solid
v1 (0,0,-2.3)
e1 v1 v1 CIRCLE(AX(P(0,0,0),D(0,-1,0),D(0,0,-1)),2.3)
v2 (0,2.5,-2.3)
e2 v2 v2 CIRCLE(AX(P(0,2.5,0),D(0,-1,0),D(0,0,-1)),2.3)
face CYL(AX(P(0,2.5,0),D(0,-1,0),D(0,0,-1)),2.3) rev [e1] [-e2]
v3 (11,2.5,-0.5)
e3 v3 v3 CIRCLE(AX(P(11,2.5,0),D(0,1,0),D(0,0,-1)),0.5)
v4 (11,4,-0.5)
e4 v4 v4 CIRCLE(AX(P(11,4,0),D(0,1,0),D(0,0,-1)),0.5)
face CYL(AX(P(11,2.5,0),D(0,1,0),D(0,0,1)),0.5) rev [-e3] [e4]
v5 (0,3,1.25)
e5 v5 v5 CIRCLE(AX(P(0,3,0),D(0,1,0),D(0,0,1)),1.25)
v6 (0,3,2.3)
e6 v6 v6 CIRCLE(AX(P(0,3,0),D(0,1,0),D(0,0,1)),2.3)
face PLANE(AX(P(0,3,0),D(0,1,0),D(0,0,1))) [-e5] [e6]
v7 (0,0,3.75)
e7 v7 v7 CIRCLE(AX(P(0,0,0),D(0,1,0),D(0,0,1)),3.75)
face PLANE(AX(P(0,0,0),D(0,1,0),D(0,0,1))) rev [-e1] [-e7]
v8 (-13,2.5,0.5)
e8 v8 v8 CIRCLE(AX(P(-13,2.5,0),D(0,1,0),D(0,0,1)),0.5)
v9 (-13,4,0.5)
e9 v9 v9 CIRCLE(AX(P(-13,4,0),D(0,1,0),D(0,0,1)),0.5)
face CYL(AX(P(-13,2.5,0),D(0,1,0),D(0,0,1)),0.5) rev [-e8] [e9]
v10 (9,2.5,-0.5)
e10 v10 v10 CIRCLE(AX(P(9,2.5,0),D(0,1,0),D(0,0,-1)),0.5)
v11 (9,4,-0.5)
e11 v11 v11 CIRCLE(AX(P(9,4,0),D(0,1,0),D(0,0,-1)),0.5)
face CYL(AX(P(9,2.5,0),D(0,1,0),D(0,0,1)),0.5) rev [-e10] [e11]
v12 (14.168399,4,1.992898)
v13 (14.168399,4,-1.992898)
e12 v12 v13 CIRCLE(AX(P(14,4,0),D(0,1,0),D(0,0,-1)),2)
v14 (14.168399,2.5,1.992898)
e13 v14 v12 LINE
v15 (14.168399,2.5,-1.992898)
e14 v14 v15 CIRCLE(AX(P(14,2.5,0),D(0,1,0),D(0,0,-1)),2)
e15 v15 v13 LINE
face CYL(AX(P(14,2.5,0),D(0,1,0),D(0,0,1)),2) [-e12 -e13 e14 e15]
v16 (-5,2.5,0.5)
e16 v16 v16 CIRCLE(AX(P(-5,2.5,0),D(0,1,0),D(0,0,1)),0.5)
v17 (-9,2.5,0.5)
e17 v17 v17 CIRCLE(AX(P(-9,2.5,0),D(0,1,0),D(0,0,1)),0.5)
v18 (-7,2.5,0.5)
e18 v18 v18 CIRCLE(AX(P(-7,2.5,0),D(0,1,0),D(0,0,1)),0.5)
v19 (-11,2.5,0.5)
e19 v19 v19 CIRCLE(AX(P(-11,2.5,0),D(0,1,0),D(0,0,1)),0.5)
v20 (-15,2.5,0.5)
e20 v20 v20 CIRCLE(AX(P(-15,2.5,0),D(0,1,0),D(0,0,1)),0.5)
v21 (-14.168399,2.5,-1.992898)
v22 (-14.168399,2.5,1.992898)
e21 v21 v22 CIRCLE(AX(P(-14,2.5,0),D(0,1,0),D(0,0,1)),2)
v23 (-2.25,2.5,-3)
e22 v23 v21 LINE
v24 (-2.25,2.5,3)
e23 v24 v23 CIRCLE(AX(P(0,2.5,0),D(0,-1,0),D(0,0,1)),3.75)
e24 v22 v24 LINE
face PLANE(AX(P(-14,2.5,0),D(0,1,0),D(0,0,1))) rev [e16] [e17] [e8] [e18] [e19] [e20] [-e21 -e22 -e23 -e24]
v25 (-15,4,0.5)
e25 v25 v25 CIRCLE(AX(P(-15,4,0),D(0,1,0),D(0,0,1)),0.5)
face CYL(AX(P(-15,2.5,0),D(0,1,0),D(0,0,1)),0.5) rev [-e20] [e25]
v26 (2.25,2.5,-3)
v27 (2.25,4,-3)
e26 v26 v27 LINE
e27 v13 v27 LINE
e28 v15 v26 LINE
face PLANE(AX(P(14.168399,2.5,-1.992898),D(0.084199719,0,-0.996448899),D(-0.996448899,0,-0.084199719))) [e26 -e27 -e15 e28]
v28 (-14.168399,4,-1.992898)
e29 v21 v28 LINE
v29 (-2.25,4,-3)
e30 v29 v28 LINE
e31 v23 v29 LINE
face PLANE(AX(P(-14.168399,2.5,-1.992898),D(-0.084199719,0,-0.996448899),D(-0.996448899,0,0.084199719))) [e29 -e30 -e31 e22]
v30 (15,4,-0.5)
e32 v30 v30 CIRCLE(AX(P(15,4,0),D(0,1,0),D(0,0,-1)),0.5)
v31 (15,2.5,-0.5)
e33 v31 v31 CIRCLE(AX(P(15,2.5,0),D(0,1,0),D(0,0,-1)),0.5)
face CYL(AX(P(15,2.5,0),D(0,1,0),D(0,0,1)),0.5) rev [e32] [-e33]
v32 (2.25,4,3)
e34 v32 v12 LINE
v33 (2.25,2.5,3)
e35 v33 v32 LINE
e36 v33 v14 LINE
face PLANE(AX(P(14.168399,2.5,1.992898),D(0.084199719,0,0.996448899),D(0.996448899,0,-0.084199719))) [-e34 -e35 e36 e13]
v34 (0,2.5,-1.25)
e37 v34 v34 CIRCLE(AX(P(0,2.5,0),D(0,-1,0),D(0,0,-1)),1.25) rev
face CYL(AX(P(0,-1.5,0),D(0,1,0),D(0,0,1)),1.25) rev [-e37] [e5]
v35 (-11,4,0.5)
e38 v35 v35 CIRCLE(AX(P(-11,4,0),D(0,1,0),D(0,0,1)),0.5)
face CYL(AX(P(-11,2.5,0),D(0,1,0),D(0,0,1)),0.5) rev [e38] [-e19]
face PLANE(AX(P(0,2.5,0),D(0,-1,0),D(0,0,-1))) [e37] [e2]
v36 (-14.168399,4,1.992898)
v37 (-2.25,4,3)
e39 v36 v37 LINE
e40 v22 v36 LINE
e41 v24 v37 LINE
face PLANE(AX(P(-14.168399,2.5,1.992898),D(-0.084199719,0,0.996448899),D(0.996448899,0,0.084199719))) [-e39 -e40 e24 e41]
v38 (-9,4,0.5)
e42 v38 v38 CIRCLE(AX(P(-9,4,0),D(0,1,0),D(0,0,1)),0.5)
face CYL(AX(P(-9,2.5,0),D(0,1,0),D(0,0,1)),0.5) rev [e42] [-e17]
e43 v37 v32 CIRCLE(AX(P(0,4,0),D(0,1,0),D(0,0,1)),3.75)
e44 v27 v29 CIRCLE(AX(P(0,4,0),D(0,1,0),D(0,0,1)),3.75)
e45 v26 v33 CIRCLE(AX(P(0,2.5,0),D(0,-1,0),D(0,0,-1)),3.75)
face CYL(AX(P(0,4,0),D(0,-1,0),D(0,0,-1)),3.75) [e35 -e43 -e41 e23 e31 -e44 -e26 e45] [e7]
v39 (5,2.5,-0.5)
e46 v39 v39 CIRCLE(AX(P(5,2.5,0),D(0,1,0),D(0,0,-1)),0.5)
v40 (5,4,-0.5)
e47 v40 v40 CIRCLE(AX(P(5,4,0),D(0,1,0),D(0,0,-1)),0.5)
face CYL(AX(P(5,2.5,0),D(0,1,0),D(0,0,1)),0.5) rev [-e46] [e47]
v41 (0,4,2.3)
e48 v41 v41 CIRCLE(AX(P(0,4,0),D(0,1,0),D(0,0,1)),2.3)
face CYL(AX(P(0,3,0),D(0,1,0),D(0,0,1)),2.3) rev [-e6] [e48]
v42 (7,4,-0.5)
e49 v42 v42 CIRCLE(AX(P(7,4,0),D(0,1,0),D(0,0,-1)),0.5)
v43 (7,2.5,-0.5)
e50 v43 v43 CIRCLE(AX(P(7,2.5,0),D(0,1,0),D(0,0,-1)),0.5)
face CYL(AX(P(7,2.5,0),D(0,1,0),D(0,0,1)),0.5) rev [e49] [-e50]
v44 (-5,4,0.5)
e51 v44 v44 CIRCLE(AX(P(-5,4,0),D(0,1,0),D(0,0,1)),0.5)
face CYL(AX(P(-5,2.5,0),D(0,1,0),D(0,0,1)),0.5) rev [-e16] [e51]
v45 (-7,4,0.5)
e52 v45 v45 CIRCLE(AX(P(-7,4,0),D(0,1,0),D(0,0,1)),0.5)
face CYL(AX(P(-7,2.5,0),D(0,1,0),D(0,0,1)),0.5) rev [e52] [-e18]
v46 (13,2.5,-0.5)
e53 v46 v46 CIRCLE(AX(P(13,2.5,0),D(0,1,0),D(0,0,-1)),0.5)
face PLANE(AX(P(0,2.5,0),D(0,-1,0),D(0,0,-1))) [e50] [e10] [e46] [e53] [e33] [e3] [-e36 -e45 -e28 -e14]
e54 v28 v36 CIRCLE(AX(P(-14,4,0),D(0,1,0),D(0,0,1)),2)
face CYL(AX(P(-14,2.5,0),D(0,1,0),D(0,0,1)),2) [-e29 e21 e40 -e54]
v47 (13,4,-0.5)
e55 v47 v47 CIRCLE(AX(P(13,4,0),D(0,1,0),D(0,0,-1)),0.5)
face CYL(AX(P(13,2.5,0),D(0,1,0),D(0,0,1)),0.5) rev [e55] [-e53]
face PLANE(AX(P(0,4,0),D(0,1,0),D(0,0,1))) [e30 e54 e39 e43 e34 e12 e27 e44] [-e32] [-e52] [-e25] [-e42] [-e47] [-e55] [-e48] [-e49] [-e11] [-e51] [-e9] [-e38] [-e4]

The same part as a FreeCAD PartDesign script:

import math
import FreeCAD as App
import Part
import Sketcher
Q = App.Units.Quantity

doc = App.newDocument("Part")
body = doc.addObject("PartDesign::Body", "Body")

# Sketch on XZ plane
sketch1 = body.newObject("Sketcher::SketchObject", "Sketch")
sketch1.AttachmentSupport = (doc.getObject("XZ_Plane"), [""])
sketch1.MapMode = "FlatFace"
sketch1.addGeometry(Part.Circle(App.Vector(0, 0, 0), App.Vector(0, 0, 1), 3.8), False)
sketch1.addConstraint(Sketcher.Constraint("Coincident", 0, 3, -1, 1))
sketch1.addConstraint(Sketcher.Constraint("Diameter", 0, Q("7.5 mm")))
pad1 = body.newObject("PartDesign::Pad", "Pad")
pad1.Profile = sketch1
pad1.Length = 4
pad1.Reversed = True

# Sketch on XZ plane
sketch2 = body.newObject("Sketcher::SketchObject", "Sketch001")
sketch2.AttachmentSupport = (doc.getObject("XZ_Plane"), [""])
sketch2.MapMode = "FlatFace"
sketch2.AttachmentOffset = App.Placement(App.Vector(0, 0, -4), App.Rotation())
sketch2.addGeometry(Part.Circle(App.Vector(0, 0, 0), App.Vector(0, 0, 1), 2.3), False)
sketch2.addConstraint(Sketcher.Constraint("Coincident", 0, 3, -1, 1))
sketch2.addConstraint(Sketcher.Constraint("Diameter", 0, Q("4.6 mm")))
pocket1 = body.newObject("PartDesign::Pocket", "Pocket")
pocket1.Profile = sketch2
pocket1.Length = 1
pocket1.Reversed = True

# Sketch on XZ plane
sketch3 = body.newObject("Sketcher::SketchObject", "Sketch002")
sketch3.AttachmentSupport = (doc.getObject("XZ_Plane"), [""])
sketch3.MapMode = "FlatFace"
sketch3.AttachmentOffset = App.Placement(App.Vector(0, 0, -2.5), App.Rotation())
sketch3.addGeometry(Part.LineSegment(App.Vector(-2.2, -3, 0), App.Vector(-14.2, -2, 0)), False)
sketch3.addGeometry(Part.ArcOfCircle(Part.Circle(App.Vector(-14, 0, 0), App.Vector(0, 0, 1), 2), math.radians(95), math.radians(265)), False)
sketch3.addGeometry(Part.LineSegment(App.Vector(-14.2, 2, 0), App.Vector(-2.2, 3, 0)), False)
sketch3.addGeometry(Part.ArcOfCircle(Part.Circle(App.Vector(0, 0, 0), App.Vector(0, 0, 1), 3.8), math.radians(127), math.radians(233)), False)
sketch3.addGeometry(Part.Circle(App.Vector(-5, 0, 0), App.Vector(0, 0, 1), 0.5), False)
sketch3.addGeometry(Part.Circle(App.Vector(-7, 0, 0), App.Vector(0, 0, 1), 0.5), False)
sketch3.addGeometry(Part.Circle(App.Vector(-9, 0, 0), App.Vector(0, 0, 1), 0.5), False)
sketch3.addGeometry(Part.Circle(App.Vector(-11, 0, 0), App.Vector(0, 0, 1), 0.5), False)
sketch3.addGeometry(Part.Circle(App.Vector(-13, 0, 0), App.Vector(0, 0, 1), 0.5), False)
sketch3.addGeometry(Part.Circle(App.Vector(-15, 0, 0), App.Vector(0, 0, 1), 0.5), False)
sketch3.addGeometry(Part.LineSegment(App.Vector(2.2, 3, 0), App.Vector(14.2, 2, 0)), False)
sketch3.addGeometry(Part.ArcOfCircle(Part.Circle(App.Vector(14, 0, 0), App.Vector(0, 0, 1), 2), math.radians(-85), math.radians(85)), False)
sketch3.addGeometry(Part.LineSegment(App.Vector(14.2, -2, 0), App.Vector(2.2, -3, 0)), False)
sketch3.addGeometry(Part.ArcOfCircle(Part.Circle(App.Vector(0, 0, 0), App.Vector(0, 0, 1), 3.8), math.radians(-53), math.radians(53)), False)
sketch3.addGeometry(Part.Circle(App.Vector(15, 0, 0), App.Vector(0, 0, 1), 0.5), False)
sketch3.addGeometry(Part.Circle(App.Vector(13, 0, 0), App.Vector(0, 0, 1), 0.5), False)
sketch3.addGeometry(Part.Circle(App.Vector(11, 0, 0), App.Vector(0, 0, 1), 0.5), False)
sketch3.addGeometry(Part.Circle(App.Vector(9, 0, 0), App.Vector(0, 0, 1), 0.5), False)
sketch3.addGeometry(Part.Circle(App.Vector(7, 0, 0), App.Vector(0, 0, 1), 0.5), False)
sketch3.addGeometry(Part.Circle(App.Vector(5, 0, 0), App.Vector(0, 0, 1), 0.5), False)
sketch3.addConstraint(Sketcher.Constraint("Tangent", 0, 2, 1, 2))
sketch3.addConstraint(Sketcher.Constraint("Tangent", 1, 1, 2, 1))
sketch3.addConstraint(Sketcher.Constraint("Coincident", 2, 2, 3, 1))
sketch3.addConstraint(Sketcher.Constraint("Coincident", 3, 2, 0, 1))
sketch3.addConstraint(Sketcher.Constraint("Tangent", 10, 2, 11, 2))
sketch3.addConstraint(Sketcher.Constraint("Tangent", 11, 1, 12, 1))
sketch3.addConstraint(Sketcher.Constraint("Coincident", 12, 2, 13, 1))
sketch3.addConstraint(Sketcher.Constraint("Coincident", 13, 2, 10, 1))
sketch3.addConstraint(Sketcher.Constraint("Coincident", 3, 3, -1, 1))
sketch3.addConstraint(Sketcher.Constraint("Coincident", 13, 3, -1, 1))
sketch3.addConstraint(Sketcher.Constraint("Equal", 4, 5))
sketch3.addConstraint(Sketcher.Constraint("Equal", 5, 6))
sketch3.addConstraint(Sketcher.Constraint("Equal", 6, 7))
sketch3.addConstraint(Sketcher.Constraint("Equal", 7, 8))
sketch3.addConstraint(Sketcher.Constraint("Equal", 8, 9))
sketch3.addConstraint(Sketcher.Constraint("Equal", 1, 11))
sketch3.addConstraint(Sketcher.Constraint("Equal", 3, 13))
sketch3.addConstraint(Sketcher.Constraint("Equal", 9, 14))
sketch3.addConstraint(Sketcher.Constraint("Equal", 14, 15))
sketch3.addConstraint(Sketcher.Constraint("Equal", 15, 16))
sketch3.addConstraint(Sketcher.Constraint("Equal", 16, 17))
sketch3.addConstraint(Sketcher.Constraint("Equal", 17, 18))
sketch3.addConstraint(Sketcher.Constraint("Equal", 18, 19))
sketch3.addConstraint(Sketcher.Constraint("Symmetric", 1, 3, 11, 3, -1, 1))
sketch3.addConstraint(Sketcher.Constraint("Symmetric", 9, 3, 14, 3, -1, 1))
sketch3.addConstraint(Sketcher.Constraint("Symmetric", 8, 3, 15, 3, -1, 1))
sketch3.addConstraint(Sketcher.Constraint("Symmetric", 7, 3, 16, 3, -1, 1))
sketch3.addConstraint(Sketcher.Constraint("Symmetric", 6, 3, 17, 3, -1, 1))
sketch3.addConstraint(Sketcher.Constraint("Symmetric", 5, 3, 18, 3, -1, 1))
sketch3.addConstraint(Sketcher.Constraint("Symmetric", 4, 3, 19, 3, -1, 1))
sketch3.addConstraint(Sketcher.Constraint("Symmetric", 1, 1, 10, 2, -2))
sketch3.addConstraint(Sketcher.Constraint("PointOnObject", 4, 3, -1))
sketch3.addConstraint(Sketcher.Constraint("PointOnObject", 5, 3, -1))
sketch3.addConstraint(Sketcher.Constraint("PointOnObject", 6, 3, -1))
sketch3.addConstraint(Sketcher.Constraint("PointOnObject", 7, 3, -1))
sketch3.addConstraint(Sketcher.Constraint("PointOnObject", 8, 3, -1))
sketch3.addConstraint(Sketcher.Constraint("PointOnObject", 9, 3, -1))
sketch3.addConstraint(Sketcher.Constraint("Parallel", 0, 10))
sketch3.addConstraint(Sketcher.Constraint("Parallel", 2, 12))
sketch3.addConstraint(Sketcher.Constraint("Diameter", 4, Q("1 mm")))
sketch3.addConstraint(Sketcher.Constraint("Radius", 1, Q("2 mm")))
sketch3.addConstraint(Sketcher.Constraint("Radius", 3, Q("3.75 mm")))
sketch3.addConstraint(Sketcher.Constraint("DistanceX", 1, 3, -1, 1, Q("14 mm")))
sketch3.addConstraint(Sketcher.Constraint("DistanceX", 4, 3, -1, 1, Q("5 mm")))
sketch3.addConstraint(Sketcher.Constraint("DistanceX", 5, 3, -1, 1, Q("7 mm")))
sketch3.addConstraint(Sketcher.Constraint("DistanceX", 6, 3, -1, 1, Q("9 mm")))
sketch3.addConstraint(Sketcher.Constraint("DistanceX", 7, 3, -1, 1, Q("11 mm")))
sketch3.addConstraint(Sketcher.Constraint("DistanceX", 8, 3, -1, 1, Q("13 mm")))
sketch3.addConstraint(Sketcher.Constraint("DistanceX", 9, 3, -1, 1, Q("15 mm")))
sketch3.addConstraint(Sketcher.Constraint("DistanceY", -1, 1, 2, 2, Q("3 mm")))
pad2 = body.newObject("PartDesign::Pad", "Pad001")
pad2.Profile = sketch3
pad2.Length = 1.5
pad2.Reversed = True

# Sketch on XZ plane
sketch4 = body.newObject("Sketcher::SketchObject", "Sketch003")
sketch4.AttachmentSupport = (doc.getObject("XZ_Plane"), [""])
sketch4.MapMode = "FlatFace"
sketch4.AttachmentOffset = App.Placement(App.Vector(0, 0, -3), App.Rotation())
sketch4.addGeometry(Part.Circle(App.Vector(0, 0, 0), App.Vector(0, 0, 1), 1.2), False)
sketch4.addConstraint(Sketcher.Constraint("Coincident", 0, 3, -1, 1))
sketch4.addConstraint(Sketcher.Constraint("Diameter", 0, Q("2.5 mm")))
pocket2 = body.newObject("PartDesign::Pocket", "Pocket001")
pocket2.Profile = sketch4
pocket2.Length = 4.5
pocket2.Reversed = True

# Sketch on XZ plane
sketch5 = body.newObject("Sketcher::SketchObject", "Sketch004")
sketch5.AttachmentSupport = (doc.getObject("XZ_Plane"), [""])
sketch5.MapMode = "FlatFace"
sketch5.AttachmentOffset = App.Placement(App.Vector(0, 0, -2.5), App.Rotation())
sketch5.addGeometry(Part.Circle(App.Vector(0, 0, 0), App.Vector(0, 0, 1), 2.3), False)
sketch5.addConstraint(Sketcher.Constraint("Coincident", 0, 3, -1, 1))
sketch5.addConstraint(Sketcher.Constraint("Diameter", 0, Q("4.6 mm")))
pocket3 = body.newObject("PartDesign::Pocket", "Pocket002")
pocket3.Profile = sketch5
pocket3.Length = 2.5
pocket3.Reversed = True

doc.recompute()
